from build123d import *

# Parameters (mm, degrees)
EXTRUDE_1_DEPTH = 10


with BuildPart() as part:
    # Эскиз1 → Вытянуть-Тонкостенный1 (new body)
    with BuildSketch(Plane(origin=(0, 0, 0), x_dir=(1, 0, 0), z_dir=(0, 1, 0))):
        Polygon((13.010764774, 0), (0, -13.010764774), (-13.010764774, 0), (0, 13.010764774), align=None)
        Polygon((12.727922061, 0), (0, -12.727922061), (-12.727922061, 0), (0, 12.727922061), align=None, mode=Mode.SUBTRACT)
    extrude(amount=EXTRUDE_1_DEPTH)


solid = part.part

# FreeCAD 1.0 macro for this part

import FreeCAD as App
import Part
import Sketcher

V = App.Vector

doc = App.newDocument("Part")
params = doc.addObject("Spreadsheet::Sheet", "Params")
for row, (alias, value) in enumerate([
    ("sketch1_length", "18 mm"),
    ("sketch1_length2", "18.4 mm"),
    ("pad1_length", "10 mm"),
], start=1):
    params.set(f"A{row}", alias)
    params.set(f"B{row}", "=" + value)
    params.setAlias(f"B{row}", alias)

body = doc.addObject("PartDesign::Body", "Body")

# Sketch on XZ plane
sketch1 = doc.addObject("Sketcher::SketchObject", "Sketch")
body.addObject(sketch1)
sketch1.AttachmentSupport = (doc.XZ_Plane, [""])
sketch1.MapMode = "FlatFace"
sketch1.addGeometry(Part.LineSegment(V(0, 13, 0), V(13, 0, 0)), False)
sketch1.addGeometry(Part.LineSegment(V(13, 0, 0), V(0, -13, 0)), False)
sketch1.addGeometry(Part.LineSegment(V(0, -13, 0), V(-13, 0, 0)), False)
sketch1.addGeometry(Part.LineSegment(V(-13, 0, 0), V(0, 13, 0)), False)
sketch1.addGeometry(Part.LineSegment(V(13, 0, 0), V(0, 13, 0)), False)
sketch1.addGeometry(Part.LineSegment(V(0, 13, 0), V(-13, 0, 0)), False)
sketch1.addGeometry(Part.LineSegment(V(-13, 0, 0), V(0, -13, 0)), False)
sketch1.addGeometry(Part.LineSegment(V(0, -13, 0), V(13, 0, 0)), False)
sketch1.addConstraint(Sketcher.Constraint("Coincident", 0, 2, 1, 1))
sketch1.addConstraint(Sketcher.Constraint("Coincident", 1, 2, 2, 1))
sketch1.addConstraint(Sketcher.Constraint("Coincident", 2, 2, 3, 1))
sketch1.addConstraint(Sketcher.Constraint("Coincident", 3, 2, 0, 1))
sketch1.addConstraint(Sketcher.Constraint("Coincident", 4, 2, 5, 1))
sketch1.addConstraint(Sketcher.Constraint("Coincident", 5, 2, 6, 1))
sketch1.addConstraint(Sketcher.Constraint("Coincident", 6, 2, 7, 1))
sketch1.addConstraint(Sketcher.Constraint("Coincident", 7, 2, 4, 1))
sketch1.addConstraint(Sketcher.Constraint("Symmetric", 0, 2, 2, 2, -1, 1))
sketch1.addConstraint(Sketcher.Constraint("Symmetric", 1, 2, 3, 2, -1, 1))
sketch1.addConstraint(Sketcher.Constraint("Symmetric", 4, 2, 6, 2, -1, 1))
sketch1.addConstraint(Sketcher.Constraint("Symmetric", 5, 2, 7, 2, -1, 1))
sketch1.addConstraint(Sketcher.Constraint("PointOnObject", 0, 2, -1))
sketch1.addConstraint(Sketcher.Constraint("PointOnObject", 1, 2, -2))
sketch1.addConstraint(Sketcher.Constraint("PointOnObject", 4, 2, -2))
sketch1.addConstraint(Sketcher.Constraint("PointOnObject", 5, 2, -1))
sketch1.addConstraint(Sketcher.Constraint("Perpendicular", 0, 1))
sketch1.addConstraint(Sketcher.Constraint("Perpendicular", 3, 4))
sketch1.addConstraint(Sketcher.Constraint("Distance", 4, 18.0))
sketch1.addConstraint(Sketcher.Constraint("Distance", 0, 18.4))
sketch1.setExpression("Constraints[18]", "Params.sketch1_length")
sketch1.setExpression("Constraints[19]", "Params.sketch1_length2")
pad1 = doc.addObject("PartDesign::Pad", "Pad")
body.addObject(pad1)
pad1.Profile = sketch1
pad1.setExpression("Length", "Params.pad1_length")
pad1.Reversed = True

doc.recompute()
